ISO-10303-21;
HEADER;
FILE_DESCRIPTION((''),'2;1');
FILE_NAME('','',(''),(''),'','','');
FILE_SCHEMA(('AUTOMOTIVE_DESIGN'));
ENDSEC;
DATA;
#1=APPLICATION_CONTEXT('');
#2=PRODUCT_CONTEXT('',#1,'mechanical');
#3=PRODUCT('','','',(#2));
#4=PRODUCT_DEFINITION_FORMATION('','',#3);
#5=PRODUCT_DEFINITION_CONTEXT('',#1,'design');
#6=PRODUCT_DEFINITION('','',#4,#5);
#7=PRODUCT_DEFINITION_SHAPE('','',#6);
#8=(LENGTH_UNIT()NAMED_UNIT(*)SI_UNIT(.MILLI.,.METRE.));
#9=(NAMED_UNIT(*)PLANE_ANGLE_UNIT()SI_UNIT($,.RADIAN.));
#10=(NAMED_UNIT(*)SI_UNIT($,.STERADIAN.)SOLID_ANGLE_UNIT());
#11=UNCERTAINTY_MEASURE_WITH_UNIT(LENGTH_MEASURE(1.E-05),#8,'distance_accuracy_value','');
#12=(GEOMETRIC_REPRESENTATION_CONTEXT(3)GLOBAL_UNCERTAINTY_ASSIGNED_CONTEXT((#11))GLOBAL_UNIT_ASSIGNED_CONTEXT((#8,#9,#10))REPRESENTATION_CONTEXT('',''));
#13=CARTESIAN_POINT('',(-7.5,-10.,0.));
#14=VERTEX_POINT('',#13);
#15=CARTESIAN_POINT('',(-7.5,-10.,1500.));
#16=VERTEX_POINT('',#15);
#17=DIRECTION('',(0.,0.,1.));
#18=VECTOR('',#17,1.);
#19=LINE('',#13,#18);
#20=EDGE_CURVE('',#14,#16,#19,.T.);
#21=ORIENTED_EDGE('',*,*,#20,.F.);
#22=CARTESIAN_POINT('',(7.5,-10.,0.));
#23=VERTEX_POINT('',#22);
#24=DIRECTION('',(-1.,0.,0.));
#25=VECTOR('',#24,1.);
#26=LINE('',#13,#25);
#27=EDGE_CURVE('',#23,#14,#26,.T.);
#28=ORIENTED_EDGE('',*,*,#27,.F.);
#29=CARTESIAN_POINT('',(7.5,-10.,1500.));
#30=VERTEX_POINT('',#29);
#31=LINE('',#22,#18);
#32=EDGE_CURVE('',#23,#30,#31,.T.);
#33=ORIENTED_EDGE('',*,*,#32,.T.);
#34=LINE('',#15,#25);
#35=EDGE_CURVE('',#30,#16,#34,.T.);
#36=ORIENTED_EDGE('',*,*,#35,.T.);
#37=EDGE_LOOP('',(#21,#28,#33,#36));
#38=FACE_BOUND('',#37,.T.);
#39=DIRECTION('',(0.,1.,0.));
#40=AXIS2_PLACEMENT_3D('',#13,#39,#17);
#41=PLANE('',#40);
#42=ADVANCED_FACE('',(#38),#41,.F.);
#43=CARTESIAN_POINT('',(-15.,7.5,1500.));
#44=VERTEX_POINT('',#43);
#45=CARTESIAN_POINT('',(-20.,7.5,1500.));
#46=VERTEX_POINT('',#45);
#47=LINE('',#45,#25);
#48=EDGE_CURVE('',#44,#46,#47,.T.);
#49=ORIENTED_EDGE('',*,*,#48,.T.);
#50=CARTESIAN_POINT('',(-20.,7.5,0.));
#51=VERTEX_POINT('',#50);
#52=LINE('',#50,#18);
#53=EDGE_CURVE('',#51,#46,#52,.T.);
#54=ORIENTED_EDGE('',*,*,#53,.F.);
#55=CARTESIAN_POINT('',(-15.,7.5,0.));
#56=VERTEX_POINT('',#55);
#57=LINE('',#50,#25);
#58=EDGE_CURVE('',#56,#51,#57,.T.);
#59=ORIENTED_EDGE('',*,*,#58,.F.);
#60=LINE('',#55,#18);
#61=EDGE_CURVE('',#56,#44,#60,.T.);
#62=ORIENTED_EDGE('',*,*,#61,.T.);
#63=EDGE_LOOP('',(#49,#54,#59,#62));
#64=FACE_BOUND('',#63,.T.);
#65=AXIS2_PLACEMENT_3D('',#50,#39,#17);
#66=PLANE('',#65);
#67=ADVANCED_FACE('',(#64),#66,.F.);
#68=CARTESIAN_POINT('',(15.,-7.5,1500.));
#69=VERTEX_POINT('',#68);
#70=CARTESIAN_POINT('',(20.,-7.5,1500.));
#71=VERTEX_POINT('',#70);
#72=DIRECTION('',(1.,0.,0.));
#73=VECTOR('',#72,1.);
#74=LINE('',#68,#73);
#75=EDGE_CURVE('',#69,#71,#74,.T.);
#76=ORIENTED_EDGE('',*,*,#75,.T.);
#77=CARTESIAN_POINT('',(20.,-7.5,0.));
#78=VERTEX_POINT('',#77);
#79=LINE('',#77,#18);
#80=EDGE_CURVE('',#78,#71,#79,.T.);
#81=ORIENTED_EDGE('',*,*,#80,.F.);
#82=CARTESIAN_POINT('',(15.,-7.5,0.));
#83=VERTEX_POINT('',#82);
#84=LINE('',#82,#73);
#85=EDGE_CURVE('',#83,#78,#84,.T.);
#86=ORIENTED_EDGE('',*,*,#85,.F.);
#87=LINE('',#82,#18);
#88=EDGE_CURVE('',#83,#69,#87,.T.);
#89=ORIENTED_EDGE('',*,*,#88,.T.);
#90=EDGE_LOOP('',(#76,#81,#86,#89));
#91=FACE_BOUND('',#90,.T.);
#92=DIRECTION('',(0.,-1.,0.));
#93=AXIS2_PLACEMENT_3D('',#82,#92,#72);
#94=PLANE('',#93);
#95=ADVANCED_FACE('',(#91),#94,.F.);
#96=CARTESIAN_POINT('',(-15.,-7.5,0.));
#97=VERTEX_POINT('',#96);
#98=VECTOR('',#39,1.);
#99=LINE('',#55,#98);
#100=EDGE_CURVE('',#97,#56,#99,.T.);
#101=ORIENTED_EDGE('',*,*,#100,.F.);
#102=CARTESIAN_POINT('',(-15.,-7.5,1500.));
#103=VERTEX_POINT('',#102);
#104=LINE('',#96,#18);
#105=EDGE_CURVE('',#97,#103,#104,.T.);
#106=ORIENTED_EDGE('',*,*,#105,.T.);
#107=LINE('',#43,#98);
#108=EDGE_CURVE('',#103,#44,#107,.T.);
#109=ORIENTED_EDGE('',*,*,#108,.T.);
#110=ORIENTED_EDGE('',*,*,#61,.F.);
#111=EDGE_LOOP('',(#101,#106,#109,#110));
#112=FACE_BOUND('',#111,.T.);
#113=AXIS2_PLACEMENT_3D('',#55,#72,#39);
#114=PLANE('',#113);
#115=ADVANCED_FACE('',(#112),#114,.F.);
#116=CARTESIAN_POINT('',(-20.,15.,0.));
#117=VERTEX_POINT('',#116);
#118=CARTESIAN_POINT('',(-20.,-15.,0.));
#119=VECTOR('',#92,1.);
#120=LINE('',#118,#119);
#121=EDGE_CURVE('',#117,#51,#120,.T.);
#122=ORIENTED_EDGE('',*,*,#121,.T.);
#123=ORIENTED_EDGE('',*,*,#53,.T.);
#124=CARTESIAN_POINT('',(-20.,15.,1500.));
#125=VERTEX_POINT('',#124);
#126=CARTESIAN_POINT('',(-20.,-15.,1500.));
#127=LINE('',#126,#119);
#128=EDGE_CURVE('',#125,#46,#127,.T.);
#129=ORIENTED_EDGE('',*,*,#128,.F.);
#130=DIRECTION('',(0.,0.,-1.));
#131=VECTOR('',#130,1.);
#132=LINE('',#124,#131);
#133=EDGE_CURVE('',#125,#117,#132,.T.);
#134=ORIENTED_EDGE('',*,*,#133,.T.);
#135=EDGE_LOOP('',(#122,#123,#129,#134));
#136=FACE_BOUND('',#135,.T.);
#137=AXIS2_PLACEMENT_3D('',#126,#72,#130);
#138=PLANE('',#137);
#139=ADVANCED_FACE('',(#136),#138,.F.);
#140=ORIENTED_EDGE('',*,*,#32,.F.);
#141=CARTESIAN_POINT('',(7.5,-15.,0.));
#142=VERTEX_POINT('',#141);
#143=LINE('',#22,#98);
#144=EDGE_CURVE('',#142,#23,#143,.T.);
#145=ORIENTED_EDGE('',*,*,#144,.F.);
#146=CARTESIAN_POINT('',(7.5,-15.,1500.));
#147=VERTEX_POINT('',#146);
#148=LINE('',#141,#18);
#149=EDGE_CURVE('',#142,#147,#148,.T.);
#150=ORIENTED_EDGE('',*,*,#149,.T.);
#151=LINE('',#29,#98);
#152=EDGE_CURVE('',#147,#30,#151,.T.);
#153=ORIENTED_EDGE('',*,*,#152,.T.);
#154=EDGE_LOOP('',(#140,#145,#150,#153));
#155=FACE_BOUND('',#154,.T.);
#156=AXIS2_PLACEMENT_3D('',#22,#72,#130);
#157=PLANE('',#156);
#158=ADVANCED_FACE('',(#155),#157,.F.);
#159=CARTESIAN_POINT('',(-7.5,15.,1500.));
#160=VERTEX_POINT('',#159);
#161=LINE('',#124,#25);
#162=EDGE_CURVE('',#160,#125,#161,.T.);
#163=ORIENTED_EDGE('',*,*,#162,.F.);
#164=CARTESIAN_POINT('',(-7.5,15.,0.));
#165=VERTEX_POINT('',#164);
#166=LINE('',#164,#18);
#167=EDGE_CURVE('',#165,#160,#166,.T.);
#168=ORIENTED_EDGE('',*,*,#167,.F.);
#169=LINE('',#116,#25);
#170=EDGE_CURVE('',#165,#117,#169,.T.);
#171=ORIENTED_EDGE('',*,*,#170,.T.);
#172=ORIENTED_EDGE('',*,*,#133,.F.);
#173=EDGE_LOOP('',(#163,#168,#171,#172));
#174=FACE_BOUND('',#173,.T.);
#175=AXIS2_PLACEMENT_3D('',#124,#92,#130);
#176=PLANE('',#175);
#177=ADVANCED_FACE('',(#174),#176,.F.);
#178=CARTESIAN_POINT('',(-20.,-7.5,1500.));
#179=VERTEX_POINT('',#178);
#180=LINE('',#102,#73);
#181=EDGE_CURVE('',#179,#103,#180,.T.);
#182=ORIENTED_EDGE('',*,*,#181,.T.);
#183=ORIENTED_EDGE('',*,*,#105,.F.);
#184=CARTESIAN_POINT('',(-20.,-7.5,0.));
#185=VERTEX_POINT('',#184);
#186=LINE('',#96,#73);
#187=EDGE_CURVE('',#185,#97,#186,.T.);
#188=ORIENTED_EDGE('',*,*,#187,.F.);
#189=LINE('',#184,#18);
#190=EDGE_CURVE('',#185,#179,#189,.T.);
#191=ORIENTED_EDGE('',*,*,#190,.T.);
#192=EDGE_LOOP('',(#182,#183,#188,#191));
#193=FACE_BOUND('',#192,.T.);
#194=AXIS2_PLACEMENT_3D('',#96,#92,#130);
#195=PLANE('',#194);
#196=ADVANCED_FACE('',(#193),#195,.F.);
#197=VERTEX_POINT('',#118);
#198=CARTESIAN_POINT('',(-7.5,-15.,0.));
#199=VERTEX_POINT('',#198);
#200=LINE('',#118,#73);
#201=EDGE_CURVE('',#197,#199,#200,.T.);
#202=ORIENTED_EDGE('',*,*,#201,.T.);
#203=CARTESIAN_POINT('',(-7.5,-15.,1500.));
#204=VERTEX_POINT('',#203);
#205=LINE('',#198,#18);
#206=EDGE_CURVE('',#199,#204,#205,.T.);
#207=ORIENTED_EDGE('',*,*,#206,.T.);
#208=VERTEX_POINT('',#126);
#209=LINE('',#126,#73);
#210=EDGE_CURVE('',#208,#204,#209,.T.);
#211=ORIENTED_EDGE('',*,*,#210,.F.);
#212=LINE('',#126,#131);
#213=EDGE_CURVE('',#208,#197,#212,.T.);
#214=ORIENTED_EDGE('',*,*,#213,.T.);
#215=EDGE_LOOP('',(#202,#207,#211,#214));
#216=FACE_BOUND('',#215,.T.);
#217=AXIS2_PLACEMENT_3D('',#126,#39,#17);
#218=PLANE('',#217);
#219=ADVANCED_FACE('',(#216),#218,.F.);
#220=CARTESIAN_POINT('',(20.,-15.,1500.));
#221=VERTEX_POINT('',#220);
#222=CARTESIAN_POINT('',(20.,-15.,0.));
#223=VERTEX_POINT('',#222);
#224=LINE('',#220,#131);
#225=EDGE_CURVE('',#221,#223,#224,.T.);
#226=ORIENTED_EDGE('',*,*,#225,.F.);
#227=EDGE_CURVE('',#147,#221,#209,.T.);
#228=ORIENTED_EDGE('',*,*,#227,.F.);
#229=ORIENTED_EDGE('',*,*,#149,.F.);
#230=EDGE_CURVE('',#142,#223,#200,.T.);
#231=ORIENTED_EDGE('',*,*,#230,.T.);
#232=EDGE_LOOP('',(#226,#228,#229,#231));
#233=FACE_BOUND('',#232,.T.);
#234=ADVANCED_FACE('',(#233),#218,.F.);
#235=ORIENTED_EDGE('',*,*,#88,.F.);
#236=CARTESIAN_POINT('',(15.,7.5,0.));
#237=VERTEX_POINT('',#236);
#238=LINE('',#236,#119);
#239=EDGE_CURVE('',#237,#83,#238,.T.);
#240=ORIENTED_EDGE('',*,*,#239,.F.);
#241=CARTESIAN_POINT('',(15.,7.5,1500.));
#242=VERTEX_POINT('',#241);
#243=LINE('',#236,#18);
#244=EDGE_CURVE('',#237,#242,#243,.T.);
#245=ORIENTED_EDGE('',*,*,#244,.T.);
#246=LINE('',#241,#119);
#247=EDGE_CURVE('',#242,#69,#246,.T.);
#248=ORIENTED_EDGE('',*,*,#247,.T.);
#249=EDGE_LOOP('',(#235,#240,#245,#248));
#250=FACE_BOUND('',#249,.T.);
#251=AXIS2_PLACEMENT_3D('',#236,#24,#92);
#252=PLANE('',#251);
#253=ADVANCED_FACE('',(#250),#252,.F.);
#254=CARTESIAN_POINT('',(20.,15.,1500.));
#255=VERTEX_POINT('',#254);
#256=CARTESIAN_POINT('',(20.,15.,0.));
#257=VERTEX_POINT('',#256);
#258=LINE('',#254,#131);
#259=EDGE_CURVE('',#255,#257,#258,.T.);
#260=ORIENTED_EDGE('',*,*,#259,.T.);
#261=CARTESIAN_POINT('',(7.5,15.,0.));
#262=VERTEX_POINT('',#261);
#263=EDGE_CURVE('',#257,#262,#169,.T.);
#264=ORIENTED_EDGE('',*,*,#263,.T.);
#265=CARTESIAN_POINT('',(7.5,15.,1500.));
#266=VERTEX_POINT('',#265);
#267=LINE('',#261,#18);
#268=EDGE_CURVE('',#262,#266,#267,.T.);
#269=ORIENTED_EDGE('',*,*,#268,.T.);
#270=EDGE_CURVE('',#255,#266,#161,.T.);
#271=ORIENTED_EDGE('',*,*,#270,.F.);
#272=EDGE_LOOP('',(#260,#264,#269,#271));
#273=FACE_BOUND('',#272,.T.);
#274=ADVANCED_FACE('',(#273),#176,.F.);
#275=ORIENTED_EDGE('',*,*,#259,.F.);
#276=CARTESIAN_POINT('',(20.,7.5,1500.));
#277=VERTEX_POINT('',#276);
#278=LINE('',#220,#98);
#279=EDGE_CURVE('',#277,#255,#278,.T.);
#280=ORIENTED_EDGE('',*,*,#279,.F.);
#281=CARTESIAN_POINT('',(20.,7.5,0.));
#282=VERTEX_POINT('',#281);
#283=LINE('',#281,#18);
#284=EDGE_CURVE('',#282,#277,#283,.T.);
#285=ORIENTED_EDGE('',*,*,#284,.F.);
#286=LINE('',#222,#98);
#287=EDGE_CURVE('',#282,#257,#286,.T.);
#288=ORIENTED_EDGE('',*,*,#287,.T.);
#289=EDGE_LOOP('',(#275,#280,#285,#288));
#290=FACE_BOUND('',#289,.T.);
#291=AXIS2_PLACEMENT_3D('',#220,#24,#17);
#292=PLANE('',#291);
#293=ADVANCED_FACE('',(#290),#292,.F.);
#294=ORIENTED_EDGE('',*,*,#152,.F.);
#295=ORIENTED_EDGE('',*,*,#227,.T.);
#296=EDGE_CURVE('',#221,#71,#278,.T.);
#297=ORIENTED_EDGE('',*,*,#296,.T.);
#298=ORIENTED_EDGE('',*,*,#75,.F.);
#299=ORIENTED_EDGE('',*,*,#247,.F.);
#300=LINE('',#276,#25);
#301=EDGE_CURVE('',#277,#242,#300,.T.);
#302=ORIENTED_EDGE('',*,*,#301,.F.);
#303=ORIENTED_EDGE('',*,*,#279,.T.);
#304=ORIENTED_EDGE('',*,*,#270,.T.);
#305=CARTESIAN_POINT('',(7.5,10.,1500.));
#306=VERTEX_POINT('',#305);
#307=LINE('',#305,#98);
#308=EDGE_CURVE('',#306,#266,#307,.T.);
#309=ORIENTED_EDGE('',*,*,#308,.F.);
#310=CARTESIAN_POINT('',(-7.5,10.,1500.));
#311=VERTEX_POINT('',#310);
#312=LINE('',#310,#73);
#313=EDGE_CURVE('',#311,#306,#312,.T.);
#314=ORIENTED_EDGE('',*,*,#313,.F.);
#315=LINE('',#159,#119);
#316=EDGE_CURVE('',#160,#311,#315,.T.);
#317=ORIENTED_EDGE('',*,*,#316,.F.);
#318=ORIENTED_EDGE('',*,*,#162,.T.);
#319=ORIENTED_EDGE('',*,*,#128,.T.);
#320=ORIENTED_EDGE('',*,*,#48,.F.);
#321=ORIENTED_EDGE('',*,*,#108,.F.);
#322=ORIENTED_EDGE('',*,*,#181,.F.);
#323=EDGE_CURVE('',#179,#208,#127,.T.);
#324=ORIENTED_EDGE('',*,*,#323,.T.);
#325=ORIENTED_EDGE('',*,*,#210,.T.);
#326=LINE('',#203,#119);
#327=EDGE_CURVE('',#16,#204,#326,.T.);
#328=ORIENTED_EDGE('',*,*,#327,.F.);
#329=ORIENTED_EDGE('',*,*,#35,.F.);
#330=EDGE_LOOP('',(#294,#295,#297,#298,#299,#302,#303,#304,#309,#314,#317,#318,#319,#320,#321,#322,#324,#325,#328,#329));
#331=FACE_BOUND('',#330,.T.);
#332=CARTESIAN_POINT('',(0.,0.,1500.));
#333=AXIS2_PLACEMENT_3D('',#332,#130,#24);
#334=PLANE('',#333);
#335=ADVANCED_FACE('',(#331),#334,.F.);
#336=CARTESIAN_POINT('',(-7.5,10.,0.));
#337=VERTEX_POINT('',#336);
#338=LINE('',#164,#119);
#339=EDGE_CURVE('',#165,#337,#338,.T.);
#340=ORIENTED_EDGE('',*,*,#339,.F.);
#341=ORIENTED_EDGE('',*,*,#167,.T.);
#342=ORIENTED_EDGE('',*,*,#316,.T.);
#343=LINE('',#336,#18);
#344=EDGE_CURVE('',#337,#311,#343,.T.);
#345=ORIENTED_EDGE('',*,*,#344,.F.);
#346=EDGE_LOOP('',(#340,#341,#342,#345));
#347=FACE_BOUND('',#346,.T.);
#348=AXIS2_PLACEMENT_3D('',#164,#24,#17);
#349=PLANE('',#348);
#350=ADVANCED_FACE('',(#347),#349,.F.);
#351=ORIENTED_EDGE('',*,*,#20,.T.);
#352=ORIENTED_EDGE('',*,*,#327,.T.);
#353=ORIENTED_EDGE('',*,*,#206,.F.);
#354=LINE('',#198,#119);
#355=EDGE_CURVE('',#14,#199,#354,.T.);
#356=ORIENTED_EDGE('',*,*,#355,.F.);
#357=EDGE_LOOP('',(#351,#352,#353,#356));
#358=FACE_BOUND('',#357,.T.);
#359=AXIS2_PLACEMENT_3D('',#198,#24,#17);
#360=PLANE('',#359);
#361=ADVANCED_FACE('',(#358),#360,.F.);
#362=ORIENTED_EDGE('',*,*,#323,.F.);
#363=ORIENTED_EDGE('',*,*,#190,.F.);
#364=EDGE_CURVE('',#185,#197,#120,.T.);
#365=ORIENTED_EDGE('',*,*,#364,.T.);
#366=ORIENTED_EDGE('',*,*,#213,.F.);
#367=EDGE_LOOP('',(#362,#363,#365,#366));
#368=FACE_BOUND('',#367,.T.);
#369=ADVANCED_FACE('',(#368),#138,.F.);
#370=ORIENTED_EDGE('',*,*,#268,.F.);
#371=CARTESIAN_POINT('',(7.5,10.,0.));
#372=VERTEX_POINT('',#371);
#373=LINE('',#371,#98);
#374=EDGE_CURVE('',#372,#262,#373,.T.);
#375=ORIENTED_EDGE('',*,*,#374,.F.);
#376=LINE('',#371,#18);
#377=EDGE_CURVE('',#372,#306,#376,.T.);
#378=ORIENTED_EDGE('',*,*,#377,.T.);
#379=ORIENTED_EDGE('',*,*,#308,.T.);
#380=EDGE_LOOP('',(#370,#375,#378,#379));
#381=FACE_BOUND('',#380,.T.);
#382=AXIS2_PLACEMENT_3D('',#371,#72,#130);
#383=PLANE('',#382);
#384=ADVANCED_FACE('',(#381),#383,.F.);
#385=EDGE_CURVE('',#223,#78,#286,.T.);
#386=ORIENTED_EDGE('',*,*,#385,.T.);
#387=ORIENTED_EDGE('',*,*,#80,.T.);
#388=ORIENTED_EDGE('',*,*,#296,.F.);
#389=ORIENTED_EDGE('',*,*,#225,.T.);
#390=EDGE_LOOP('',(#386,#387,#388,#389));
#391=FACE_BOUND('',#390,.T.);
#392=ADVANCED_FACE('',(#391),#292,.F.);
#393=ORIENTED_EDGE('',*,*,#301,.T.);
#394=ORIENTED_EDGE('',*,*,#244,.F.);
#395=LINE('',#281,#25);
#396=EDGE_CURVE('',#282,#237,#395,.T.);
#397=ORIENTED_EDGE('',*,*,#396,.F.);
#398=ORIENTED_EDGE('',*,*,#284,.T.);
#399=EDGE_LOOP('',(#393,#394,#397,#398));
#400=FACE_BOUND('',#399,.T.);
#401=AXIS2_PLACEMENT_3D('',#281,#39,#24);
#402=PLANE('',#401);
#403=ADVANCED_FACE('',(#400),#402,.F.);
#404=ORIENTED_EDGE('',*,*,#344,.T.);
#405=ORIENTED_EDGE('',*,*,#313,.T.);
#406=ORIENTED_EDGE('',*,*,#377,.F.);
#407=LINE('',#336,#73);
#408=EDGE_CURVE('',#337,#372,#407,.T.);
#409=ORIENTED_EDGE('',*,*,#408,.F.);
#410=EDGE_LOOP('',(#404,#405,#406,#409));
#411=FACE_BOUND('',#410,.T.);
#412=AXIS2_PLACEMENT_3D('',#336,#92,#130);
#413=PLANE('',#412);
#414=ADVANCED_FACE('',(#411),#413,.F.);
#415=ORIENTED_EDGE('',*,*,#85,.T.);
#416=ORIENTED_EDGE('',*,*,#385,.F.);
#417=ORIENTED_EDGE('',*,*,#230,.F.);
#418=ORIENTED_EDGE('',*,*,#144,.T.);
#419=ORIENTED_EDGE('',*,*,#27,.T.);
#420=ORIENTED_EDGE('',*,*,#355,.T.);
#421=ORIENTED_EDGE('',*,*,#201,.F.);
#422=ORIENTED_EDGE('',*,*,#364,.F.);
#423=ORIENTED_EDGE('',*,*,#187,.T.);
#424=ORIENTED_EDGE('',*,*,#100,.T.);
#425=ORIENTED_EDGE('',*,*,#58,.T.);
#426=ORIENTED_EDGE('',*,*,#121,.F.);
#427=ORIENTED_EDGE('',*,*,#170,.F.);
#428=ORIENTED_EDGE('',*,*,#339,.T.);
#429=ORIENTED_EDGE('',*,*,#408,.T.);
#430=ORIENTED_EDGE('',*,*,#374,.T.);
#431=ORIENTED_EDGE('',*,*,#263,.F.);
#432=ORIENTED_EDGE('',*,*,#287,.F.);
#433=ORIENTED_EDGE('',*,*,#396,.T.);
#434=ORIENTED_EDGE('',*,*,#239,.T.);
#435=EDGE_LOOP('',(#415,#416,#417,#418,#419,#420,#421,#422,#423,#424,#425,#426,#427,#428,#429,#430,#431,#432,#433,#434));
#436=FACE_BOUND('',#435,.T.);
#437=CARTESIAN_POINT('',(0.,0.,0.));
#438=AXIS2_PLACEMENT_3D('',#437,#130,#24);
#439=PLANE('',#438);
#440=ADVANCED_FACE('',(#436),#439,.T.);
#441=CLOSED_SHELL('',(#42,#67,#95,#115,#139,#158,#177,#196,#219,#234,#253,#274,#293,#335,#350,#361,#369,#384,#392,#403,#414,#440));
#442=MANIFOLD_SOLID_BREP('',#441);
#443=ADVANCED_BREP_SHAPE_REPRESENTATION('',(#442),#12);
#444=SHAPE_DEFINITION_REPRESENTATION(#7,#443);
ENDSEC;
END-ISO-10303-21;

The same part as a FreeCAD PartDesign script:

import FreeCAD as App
import Part
import Sketcher

V = App.Vector


def add_polygon(sketch, points):
    """Adds a closed chain of lines whose ends are joined by coincident constraints."""
    first, n = sketch.GeometryCount, len(points)
    for a, b in zip(points, points[1:] + points[:1]):
        sketch.addGeometry(Part.LineSegment(App.Vector(*a, 0), App.Vector(*b, 0)), False)
    for i in range(n):
        sketch.addConstraint(Sketcher.Constraint("Coincident", first + i, 2, first + (i + 1) % n, 1))

doc = App.newDocument("Part")
body = doc.addObject("PartDesign::Body", "Body")

# Sketch on XY plane
sketch1 = body.newObject("Sketcher::SketchObject", "Sketch")
sketch1.AttachmentSupport = (doc.getObject("XY_Plane"), [""])
sketch1.MapMode = "FlatFace"
add_polygon(sketch1, [(-20, 15), (-20, -15), (20, -15), (20, 15)])  # lines 0-3
sketch1.addConstraint([
    Sketcher.Constraint("Vertical", 0),
    Sketcher.Constraint("Horizontal", 1),
    Sketcher.Constraint("Vertical", 2),
    Sketcher.Constraint("Horizontal", 3),
    Sketcher.Constraint("Symmetric", 0, 2, 2, 2, -1, 1),
    Sketcher.Constraint("DistanceX", 1, 1, 1, 2, 40.0),
    Sketcher.Constraint("DistanceY", 0, 2, 0, 1, 30.0),
])
pad1 = body.newObject("PartDesign::Pad", "Pad")
pad1.Profile = sketch1
pad1.Length = 1500

# Sketch on XY plane
sketch2 = body.newObject("Sketcher::SketchObject", "Sketch001")
sketch2.AttachmentSupport = (doc.getObject("XY_Plane"), [""])
sketch2.MapMode = "FlatFace"
sketch2.AttachmentOffset = App.Placement(V(0, 0, 1500), App.Rotation())
add_polygon(sketch2, [(-8, 15), (-8, 10), (8, 10), (8, 15)])  # lines 0-3
add_polygon(sketch2, [(15, 8), (15, -8), (20, -8), (20, 8)])  # lines 4-7
add_polygon(sketch2, [(-8, -10), (-8, -15), (8, -15), (8, -10)])  # lines 8-11
add_polygon(sketch2, [(-20, 8), (-20, -8), (-15, -8), (-15, 8)])  # lines 12-15
sketch2.addConstraint([
    Sketcher.Constraint("Vertical", 0),
    Sketcher.Constraint("Horizontal", 1),
    Sketcher.Constraint("Vertical", 2),
    Sketcher.Constraint("Horizontal", 3),
    Sketcher.Constraint("Vertical", 4),
    Sketcher.Constraint("Horizontal", 5),
    Sketcher.Constraint("Vertical", 6),
    Sketcher.Constraint("Horizontal", 7),
    Sketcher.Constraint("Vertical", 8),
    Sketcher.Constraint("Horizontal", 9),
    Sketcher.Constraint("Vertical", 10),
    Sketcher.Constraint("Horizontal", 11),
    Sketcher.Constraint("Vertical", 12),
    Sketcher.Constraint("Horizontal", 13),
    Sketcher.Constraint("Vertical", 14),
    Sketcher.Constraint("Horizontal", 15),
    Sketcher.Constraint("Symmetric", 2, 2, 8, 2, -1, 1),
    Sketcher.Constraint("Symmetric", 0, 2, 10, 2, -1, 1),
    Sketcher.Constraint("Symmetric", 6, 2, 12, 2, -1, 1),
    Sketcher.Constraint("Symmetric", 4, 2, 14, 2, -1, 1),
    Sketcher.Constraint("Horizontal", 5, 2, 12, 2),
    Sketcher.Constraint("Vertical", 3, 2, 8, 2),
    Sketcher.Constraint("Equal", 15, 0),
    Sketcher.Constraint("Equal", 11, 4),
    Sketcher.Constraint("DistanceX", 1, 1, 1, 2, 15.0),
    Sketcher.Constraint("DistanceX", 5, 1, 5, 2, 5.0),
    Sketcher.Constraint("DistanceY", -1, 1, 0, 2, 10.0),
    Sketcher.Constraint("DistanceX", -1, 1, 4, 2, 15.0),
])
pocket1 = body.newObject("PartDesign::Pocket", "Pocket")
pocket1.Profile = sketch2
pocket1.Length = 1500

doc.recompute()
